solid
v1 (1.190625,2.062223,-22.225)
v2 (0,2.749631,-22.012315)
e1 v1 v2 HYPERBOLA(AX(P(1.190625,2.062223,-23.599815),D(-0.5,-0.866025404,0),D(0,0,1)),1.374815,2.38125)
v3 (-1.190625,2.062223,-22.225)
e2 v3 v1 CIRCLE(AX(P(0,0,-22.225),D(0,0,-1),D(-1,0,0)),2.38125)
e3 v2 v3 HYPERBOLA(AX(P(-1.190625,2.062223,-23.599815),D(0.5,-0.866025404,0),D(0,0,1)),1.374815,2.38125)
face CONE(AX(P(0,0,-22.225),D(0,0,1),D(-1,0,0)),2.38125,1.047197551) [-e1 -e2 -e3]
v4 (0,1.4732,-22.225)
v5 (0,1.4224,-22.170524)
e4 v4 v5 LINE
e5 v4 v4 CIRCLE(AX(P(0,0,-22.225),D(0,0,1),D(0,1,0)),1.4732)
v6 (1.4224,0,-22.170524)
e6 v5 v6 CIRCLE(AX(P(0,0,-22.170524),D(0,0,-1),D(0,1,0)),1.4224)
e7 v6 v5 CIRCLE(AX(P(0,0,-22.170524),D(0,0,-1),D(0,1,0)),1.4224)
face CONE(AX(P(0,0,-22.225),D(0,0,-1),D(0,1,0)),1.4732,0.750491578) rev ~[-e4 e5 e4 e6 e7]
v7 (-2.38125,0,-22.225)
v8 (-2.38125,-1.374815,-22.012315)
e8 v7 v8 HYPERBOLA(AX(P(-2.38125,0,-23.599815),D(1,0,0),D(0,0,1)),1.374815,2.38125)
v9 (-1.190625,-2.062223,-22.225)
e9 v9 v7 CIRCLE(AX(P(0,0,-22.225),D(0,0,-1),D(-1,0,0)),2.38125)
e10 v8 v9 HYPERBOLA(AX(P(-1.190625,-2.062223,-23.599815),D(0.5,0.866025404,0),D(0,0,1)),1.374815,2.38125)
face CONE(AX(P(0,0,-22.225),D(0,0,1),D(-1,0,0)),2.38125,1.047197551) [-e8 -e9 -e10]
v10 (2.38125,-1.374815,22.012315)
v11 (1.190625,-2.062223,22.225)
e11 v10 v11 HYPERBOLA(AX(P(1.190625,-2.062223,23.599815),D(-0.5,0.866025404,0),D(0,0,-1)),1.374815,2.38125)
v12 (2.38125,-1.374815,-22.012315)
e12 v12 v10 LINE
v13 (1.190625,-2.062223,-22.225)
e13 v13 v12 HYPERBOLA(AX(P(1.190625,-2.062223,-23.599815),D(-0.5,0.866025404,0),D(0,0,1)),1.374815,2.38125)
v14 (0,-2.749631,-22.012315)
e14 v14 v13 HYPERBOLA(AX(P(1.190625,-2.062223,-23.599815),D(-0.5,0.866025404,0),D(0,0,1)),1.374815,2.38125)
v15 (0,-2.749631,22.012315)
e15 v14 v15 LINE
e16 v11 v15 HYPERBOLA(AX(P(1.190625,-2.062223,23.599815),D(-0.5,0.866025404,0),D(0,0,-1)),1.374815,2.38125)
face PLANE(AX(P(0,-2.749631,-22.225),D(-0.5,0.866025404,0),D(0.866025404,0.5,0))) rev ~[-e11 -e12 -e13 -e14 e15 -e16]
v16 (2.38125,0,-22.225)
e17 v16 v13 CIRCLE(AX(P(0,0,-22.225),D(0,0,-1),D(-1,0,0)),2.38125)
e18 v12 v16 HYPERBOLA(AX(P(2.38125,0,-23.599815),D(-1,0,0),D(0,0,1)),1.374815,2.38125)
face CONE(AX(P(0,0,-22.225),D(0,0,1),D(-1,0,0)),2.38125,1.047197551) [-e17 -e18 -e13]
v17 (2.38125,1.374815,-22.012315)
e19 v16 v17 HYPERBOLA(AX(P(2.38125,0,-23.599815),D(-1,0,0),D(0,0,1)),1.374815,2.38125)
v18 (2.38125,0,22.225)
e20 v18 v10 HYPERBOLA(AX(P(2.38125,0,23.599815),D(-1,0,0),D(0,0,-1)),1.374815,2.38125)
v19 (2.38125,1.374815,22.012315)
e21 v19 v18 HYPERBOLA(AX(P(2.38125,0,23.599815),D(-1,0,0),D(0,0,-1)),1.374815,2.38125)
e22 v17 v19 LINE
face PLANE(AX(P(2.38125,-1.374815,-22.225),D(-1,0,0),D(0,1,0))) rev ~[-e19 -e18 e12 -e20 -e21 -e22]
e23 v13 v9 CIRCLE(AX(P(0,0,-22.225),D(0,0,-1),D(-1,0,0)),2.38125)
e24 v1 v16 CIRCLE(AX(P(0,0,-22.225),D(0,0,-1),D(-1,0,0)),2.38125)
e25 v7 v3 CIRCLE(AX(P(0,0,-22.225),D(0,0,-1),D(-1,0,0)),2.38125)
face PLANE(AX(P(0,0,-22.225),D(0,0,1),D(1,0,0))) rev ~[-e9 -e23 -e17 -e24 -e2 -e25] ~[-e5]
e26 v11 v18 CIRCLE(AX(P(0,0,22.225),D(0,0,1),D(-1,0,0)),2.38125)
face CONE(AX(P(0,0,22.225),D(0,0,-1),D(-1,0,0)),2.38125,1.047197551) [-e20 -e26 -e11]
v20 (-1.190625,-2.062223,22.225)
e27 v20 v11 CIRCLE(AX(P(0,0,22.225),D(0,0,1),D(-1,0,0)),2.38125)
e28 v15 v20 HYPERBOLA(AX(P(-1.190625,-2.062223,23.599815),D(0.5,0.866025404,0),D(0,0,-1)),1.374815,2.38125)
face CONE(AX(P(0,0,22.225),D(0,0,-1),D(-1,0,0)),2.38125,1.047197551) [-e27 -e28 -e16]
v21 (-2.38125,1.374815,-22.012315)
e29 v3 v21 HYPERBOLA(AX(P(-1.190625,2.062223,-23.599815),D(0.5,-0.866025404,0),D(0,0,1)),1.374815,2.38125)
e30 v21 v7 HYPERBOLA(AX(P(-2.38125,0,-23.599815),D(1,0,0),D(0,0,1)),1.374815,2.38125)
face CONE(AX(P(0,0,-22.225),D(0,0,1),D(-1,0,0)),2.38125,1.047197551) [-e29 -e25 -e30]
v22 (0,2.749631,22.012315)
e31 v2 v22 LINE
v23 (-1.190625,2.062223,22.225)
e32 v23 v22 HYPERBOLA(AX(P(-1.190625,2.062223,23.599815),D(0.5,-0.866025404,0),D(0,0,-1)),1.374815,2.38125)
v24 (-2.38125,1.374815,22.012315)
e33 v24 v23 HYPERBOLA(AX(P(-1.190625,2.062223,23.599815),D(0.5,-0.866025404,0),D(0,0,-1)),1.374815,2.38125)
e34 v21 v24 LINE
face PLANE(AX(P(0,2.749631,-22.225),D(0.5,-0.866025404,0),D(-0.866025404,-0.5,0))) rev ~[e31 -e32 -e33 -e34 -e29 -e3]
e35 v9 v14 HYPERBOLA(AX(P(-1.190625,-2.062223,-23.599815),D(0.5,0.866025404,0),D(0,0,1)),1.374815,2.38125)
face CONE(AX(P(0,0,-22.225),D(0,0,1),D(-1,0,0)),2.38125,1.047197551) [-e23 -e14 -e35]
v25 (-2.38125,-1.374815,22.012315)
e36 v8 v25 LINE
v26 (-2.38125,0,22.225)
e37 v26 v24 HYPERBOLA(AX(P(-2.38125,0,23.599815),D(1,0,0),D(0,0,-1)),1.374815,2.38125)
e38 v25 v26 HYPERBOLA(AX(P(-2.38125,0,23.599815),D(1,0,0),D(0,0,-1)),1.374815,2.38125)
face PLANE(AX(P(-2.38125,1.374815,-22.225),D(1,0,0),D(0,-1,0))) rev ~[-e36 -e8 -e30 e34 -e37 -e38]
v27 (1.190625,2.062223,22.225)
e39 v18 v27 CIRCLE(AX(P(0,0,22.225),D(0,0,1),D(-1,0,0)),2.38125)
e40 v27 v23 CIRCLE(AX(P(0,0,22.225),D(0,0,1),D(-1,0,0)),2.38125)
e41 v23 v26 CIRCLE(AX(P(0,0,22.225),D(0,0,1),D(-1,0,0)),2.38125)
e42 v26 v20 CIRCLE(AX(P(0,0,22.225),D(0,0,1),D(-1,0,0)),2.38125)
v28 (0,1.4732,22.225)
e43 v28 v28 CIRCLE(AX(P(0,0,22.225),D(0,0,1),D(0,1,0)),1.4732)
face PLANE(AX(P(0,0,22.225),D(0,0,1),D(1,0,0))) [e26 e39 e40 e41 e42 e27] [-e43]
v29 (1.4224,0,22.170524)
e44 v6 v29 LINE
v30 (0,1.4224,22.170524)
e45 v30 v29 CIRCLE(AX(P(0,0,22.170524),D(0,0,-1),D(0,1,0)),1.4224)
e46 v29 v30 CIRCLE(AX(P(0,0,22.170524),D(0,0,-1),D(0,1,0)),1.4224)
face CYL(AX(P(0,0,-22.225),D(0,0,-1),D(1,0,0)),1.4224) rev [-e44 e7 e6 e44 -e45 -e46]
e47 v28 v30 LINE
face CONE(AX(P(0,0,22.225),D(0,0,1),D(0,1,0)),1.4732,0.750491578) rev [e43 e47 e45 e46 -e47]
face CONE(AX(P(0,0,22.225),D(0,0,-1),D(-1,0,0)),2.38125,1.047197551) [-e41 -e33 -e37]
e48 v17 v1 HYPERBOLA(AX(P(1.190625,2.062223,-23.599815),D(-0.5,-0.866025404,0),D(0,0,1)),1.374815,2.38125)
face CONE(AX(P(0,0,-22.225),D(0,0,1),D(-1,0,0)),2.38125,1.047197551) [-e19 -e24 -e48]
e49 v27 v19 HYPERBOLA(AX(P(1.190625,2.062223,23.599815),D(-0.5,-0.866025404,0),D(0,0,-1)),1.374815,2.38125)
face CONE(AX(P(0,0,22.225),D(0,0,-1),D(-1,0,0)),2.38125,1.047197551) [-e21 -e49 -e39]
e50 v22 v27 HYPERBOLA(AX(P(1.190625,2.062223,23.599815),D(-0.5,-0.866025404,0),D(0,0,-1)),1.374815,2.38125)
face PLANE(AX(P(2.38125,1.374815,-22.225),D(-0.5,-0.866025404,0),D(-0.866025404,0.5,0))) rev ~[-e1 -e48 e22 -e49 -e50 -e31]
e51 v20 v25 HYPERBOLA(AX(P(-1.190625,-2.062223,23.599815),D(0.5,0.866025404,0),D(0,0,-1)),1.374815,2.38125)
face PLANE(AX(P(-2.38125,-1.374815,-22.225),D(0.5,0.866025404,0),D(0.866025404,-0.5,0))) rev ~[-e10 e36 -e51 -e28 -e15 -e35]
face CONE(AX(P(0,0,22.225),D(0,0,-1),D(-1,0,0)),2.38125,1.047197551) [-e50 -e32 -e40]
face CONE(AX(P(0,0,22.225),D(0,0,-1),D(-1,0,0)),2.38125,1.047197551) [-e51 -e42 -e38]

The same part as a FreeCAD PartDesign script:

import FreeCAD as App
import Part
import Sketcher
from FreeCAD import Vector
Q = App.Units.Quantity


def faces_at(feature, points):
    """Names of the faces that lie closest to the given points."""
    faces = feature.Shape.Faces
    near = lambda p: min(range(len(faces)), key=lambda i: faces[i].distToShape(Part.Vertex(*p))[0])
    return sorted({f"Face{near(p) + 1}" for p in points})


def add_polygon(sketch, points):
    """Adds a closed chain of lines whose ends are joined by coincident constraints."""
    first, n = sketch.GeometryCount, len(points)
    for a, b in zip(points, points[1:] + points[:1]):
        sketch.addGeometry(Part.LineSegment(App.Vector(*a, 0), App.Vector(*b, 0)), False)
    for i in range(n):
        sketch.addConstraint(Sketcher.Constraint("Coincident", first + i, 2, first + (i + 1) % n, 1))

doc = App.newDocument("Part")
body = doc.addObject("PartDesign::Body", "Body")

# Sketch on XY plane
sketch1 = body.newObject("Sketcher::SketchObject", "Sketch")
sketch1.AttachmentSupport = (doc.getObject("XY_Plane"), [""])
sketch1.MapMode = "FlatFace"
add_polygon(sketch1, [(0, 2.749631), (-2.38125, 1.374815), (-2.38125, -1.374815), (0, -2.749631), (2.38125, -1.374815), (2.38125, 1.374815)])  # lines 0-5
sketch1.addGeometry(Part.Circle(Vector(0, 0, 0), Vector(0, 0, 1), 1.4224), False)  # 6
sketch1.addConstraint(Sketcher.Constraint("Vertical", 1))
sketch1.addConstraint(Sketcher.Constraint("Vertical", 4))
sketch1.addConstraint(Sketcher.Constraint("Coincident", 6, 3, -1, 1))
sketch1.addConstraint(Sketcher.Constraint("Symmetric", 0, 2, 3, 2, -1, 1))
sketch1.addConstraint(Sketcher.Constraint("Symmetric", 2, 2, 5, 2, -1, 1))
sketch1.addConstraint(Sketcher.Constraint("PointOnObject", 2, 2, -2))
sketch1.addConstraint(Sketcher.Constraint("Parallel", 2, 5))
sketch1.addConstraint(Sketcher.Constraint("Horizontal", 1, 2, 3, 2))
sketch1.addConstraint(Sketcher.Constraint("Diameter", 6, Q("0.112 in")))
sketch1.addConstraint(Sketcher.Constraint("Angle", 0, Q("-150 deg")))
sketch1.addConstraint(Sketcher.Constraint("DistanceX", 0, 2, -1, 1, Q("0.09375 in")))
sketch1.addConstraint(Sketcher.Constraint("DistanceY", 1, 2, 1, 1, 2.749631))
pad1 = body.newObject("PartDesign::Pad", "Pad")
pad1.Profile = sketch1
pad1.Type = "TwoLengths"
pad1.Length = Q("0.875 in")
pad1.Length2 = Q("0.875 in")

# Sketch on YZ plane
sketch2 = body.newObject("Sketcher::SketchObject", "Sketch001")
sketch2.AttachmentSupport = (doc.getObject("YZ_Plane"), [""])
sketch2.MapMode = "FlatFace"
add_polygon(sketch2, [(0, -22.225), (1.4732, -22.225), (0, -20.645186)])  # lines 0-2
sketch2.addConstraint(Sketcher.Constraint("Horizontal", 0))
sketch2.addConstraint(Sketcher.Constraint("Vertical", 2))
sketch2.addConstraint(Sketcher.Constraint("PointOnObject", 1, 2, -2))
sketch2.addConstraint(Sketcher.Constraint("Angle", 1, Q("133 deg")))
sketch2.addConstraint(Sketcher.Constraint("DistanceX", 0, 1, 0, 2, Q("0.058 in")))
sketch2.addConstraint(Sketcher.Constraint("DistanceY", 0, 2, -1, 1, Q("0.875 in")))
groove = body.newObject("PartDesign::Groove", "Groove")
groove.Profile = sketch2
groove.ReferenceAxis = (sketch2, ["V_Axis"])
groove.Angle = 360
body2 = doc.addObject("PartDesign::Body", "Body001")

# Sketch on XY plane
sketch3 = body2.newObject("Sketcher::SketchObject", "Sketch002")
sketch3.AttachmentSupport = (doc.getObject("XY_Plane001"), [""])
sketch3.MapMode = "FlatFace"
sketch3.AttachmentOffset = App.Placement(Vector(0, 0, -0.875 * 25.4), App.Rotation())
add_polygon(sketch3, [(86.864, 87.233), (86.864, -87.233), (-86.864, -87.233), (-86.864, 87.233)])  # lines 0-3
sketch3.addGeometry(Part.Circle(Vector(0, 0, 0), Vector(0, 0, 1), 2.38125), False)  # 4
sketch3.addConstraint(Sketcher.Constraint("Vertical", 0))
sketch3.addConstraint(Sketcher.Constraint("Horizontal", 1))
sketch3.addConstraint(Sketcher.Constraint("Vertical", 2))
sketch3.addConstraint(Sketcher.Constraint("Horizontal", 3))
sketch3.addConstraint(Sketcher.Constraint("Coincident", 4, 3, -1, 1))
sketch3.addConstraint(Sketcher.Constraint("Symmetric", 0, 2, 2, 2, -1, 1))
sketch3.addConstraint(Sketcher.Constraint("Diameter", 4, Q("0.1875 in")))
sketch3.addConstraint(Sketcher.Constraint("DistanceX", 1, 2, 1, 1, 173.728))
sketch3.addConstraint(Sketcher.Constraint("DistanceY", 0, 2, 0, 1, 174.466))
pad2 = body2.newObject("PartDesign::Pad", "Pad001")
pad2.Profile = sketch3
pad2.Length = 45.59858
doc.recompute()

datumplane = body2.newObject("PartDesign::Plane", "DatumPlane")
datumplane.AttachmentSupport = (doc.getObject("XY_Plane001"), [""])
datumplane.MapMode = "FlatFace"
datumplane.AttachmentOffset = App.Placement(Vector(0, 0, -0.875 * 25.4), App.Rotation())
draft = body2.newObject("PartDesign::Draft", "Draft")
draft.Base = (pad2, faces_at(pad2, [
    (0, -87.233, 0.574),
    (-86.864, 0, 0.574),
    (0, 87.233, 0.574),
    (86.864, 0, 0.574),
    (2.381, 0, 0.574),
]))
draft.NeutralPlane = (datumplane, [""])
draft.Angle = 60
draft.Reversed = False
doc.recompute()

boolean = body.newObject("PartDesign::Boolean", "Boolean")
boolean.Type = "Cut"
boolean.addObjects([body2])
doc.recompute()

mirrored = body.newObject("PartDesign::Mirrored", "Mirrored")
mirrored.Originals = [groove]
mirrored.MirrorPlane = (doc.getObject("XY_Plane"), [""])
body.Tip = mirrored
body3 = doc.addObject("PartDesign::Body", "Body002")

# Sketch on XY plane
sketch4 = body3.newObject("Sketcher::SketchObject", "Sketch003")
sketch4.AttachmentSupport = (doc.getObject("XY_Plane002"), [""])
sketch4.MapMode = "FlatFace"
sketch4.AttachmentOffset = App.Placement(Vector(0, 0, 0.875 * 25.4), App.Rotation())
add_polygon(sketch4, [(86.864, -87.233), (86.864, 87.233), (-86.864, 87.233), (-86.864, -87.233)])  # lines 0-3
sketch4.addGeometry(Part.Circle(Vector(0, 0, 0), Vector(0, 0, 1), 2.38125), False)  # 4
sketch4.addConstraint(Sketcher.Constraint("Vertical", 0))
sketch4.addConstraint(Sketcher.Constraint("Horizontal", 1))
sketch4.addConstraint(Sketcher.Constraint("Vertical", 2))
sketch4.addConstraint(Sketcher.Constraint("Horizontal", 3))
sketch4.addConstraint(Sketcher.Constraint("Coincident", 4, 3, -1, 1))
sketch4.addConstraint(Sketcher.Constraint("Symmetric", 0, 2, 2, 2, -1, 1))
sketch4.addConstraint(Sketcher.Constraint("Diameter", 4, Q("0.1875 in")))
sketch4.addConstraint(Sketcher.Constraint("DistanceX", 1, 2, 1, 1, 173.728))
sketch4.addConstraint(Sketcher.Constraint("DistanceY", 0, 1, 0, 2, 174.466))
pad3 = body3.newObject("PartDesign::Pad", "Pad002")
pad3.Profile = sketch4
pad3.Length = 45.59858
pad3.Reversed = True
doc.recompute()

datumplane2 = body3.newObject("PartDesign::Plane", "DatumPlane001")
datumplane2.AttachmentSupport = (doc.getObject("XY_Plane002"), [""])
datumplane2.MapMode = "FlatFace"
datumplane2.AttachmentOffset = App.Placement(Vector(0, 0, 0.875 * 25.4), App.Rotation())
draft2 = body3.newObject("PartDesign::Draft", "Draft001")
draft2.Base = (pad3, faces_at(pad3, [
    (0, -87.233, -0.574),
    (-86.864, 0, -0.574),
    (0, 87.233, -0.574),
    (86.864, 0, -0.574),
    (2.381, 0, -0.574),
]))
draft2.NeutralPlane = (datumplane2, [""])
draft2.Angle = 60
draft2.Reversed = True
doc.recompute()

boolean2 = body.newObject("PartDesign::Boolean", "Boolean001")
boolean2.Type = "Cut"
boolean2.addObjects([body3])

doc.recompute()
